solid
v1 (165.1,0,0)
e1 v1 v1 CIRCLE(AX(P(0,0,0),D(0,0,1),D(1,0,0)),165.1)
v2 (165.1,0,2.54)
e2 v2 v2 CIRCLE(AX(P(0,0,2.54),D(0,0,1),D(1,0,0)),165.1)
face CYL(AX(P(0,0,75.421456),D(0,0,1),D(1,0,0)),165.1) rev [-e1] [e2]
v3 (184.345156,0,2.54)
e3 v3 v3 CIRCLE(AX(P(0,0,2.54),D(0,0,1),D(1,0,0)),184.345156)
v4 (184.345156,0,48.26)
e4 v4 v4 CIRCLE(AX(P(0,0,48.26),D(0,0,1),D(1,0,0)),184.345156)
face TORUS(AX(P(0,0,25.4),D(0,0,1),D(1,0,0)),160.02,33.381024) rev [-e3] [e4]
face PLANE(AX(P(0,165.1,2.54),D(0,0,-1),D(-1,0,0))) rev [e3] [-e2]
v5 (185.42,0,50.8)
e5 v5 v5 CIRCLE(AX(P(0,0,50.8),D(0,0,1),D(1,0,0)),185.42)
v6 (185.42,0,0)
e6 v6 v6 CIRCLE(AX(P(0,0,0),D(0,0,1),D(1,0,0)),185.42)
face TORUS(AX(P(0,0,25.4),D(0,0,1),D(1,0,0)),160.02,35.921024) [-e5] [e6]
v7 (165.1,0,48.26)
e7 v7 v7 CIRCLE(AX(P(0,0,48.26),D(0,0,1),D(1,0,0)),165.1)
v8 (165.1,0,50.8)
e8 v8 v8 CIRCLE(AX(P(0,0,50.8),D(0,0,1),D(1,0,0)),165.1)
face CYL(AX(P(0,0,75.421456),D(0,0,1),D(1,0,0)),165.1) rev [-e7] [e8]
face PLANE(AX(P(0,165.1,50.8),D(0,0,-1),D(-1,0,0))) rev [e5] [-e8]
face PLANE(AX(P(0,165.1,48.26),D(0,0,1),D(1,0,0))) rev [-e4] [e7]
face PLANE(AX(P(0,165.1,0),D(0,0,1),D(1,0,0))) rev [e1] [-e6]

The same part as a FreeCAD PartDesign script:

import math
import FreeCAD as App
import Part
import Sketcher
from FreeCAD import Vector
Q = App.Units.Quantity

doc = App.newDocument("Part")
body = doc.addObject("PartDesign::Body", "Body")

# Sketch on YZ plane
sketch1 = body.newObject("Sketcher::SketchObject", "Sketch")
sketch1.AttachmentSupport = (doc.getObject("YZ_Plane"), [""])
sketch1.MapMode = "FlatFace"
sketch1.addGeometry([
    Part.LineSegment(Vector(185.42, 50.8, 0), Vector(165.1, 50.8, 0)),  # 0
    Part.LineSegment(Vector(165.1, 50.8, 0), Vector(165.1, 48.26, 0)),  # 1
    Part.LineSegment(Vector(165.1, 48.26, 0), Vector(184.345156, 48.26, 0)),  # 2
    Part.ArcOfCircle(Part.Circle(Vector(160.02, 25.4, 0), Vector(0, 0, 1), 33.381024), math.radians(-43.221469), math.radians(43.221469)),  # 3
    Part.LineSegment(Vector(184.345156, 2.54, 0), Vector(165.1, 2.54, 0)),  # 4
    Part.LineSegment(Vector(165.1, 2.54, 0), Vector(165.1, 0, 0)),  # 5
    Part.LineSegment(Vector(165.1, 0, 0), Vector(185.42, 0, 0)),  # 6
    Part.ArcOfCircle(Part.Circle(Vector(160.02, 25.4, 0), Vector(0, 0, 1), 35.921024), math.radians(-45), math.radians(45)),  # 7
], False)
sketch1.addConstraint([
    Sketcher.Constraint("Coincident", 0, 2, 1, 1),
    Sketcher.Constraint("Coincident", 1, 2, 2, 1),
    Sketcher.Constraint("Coincident", 2, 2, 3, 2),
    Sketcher.Constraint("Coincident", 3, 1, 4, 1),
    Sketcher.Constraint("Coincident", 4, 2, 5, 1),
    Sketcher.Constraint("Coincident", 5, 2, 6, 1),
    Sketcher.Constraint("Coincident", 6, 2, 7, 1),
    Sketcher.Constraint("Coincident", 7, 2, 0, 1),
    Sketcher.Constraint("Horizontal", 0),
    Sketcher.Constraint("Vertical", 1),
    Sketcher.Constraint("Horizontal", 2),
    Sketcher.Constraint("Horizontal", 4),
    Sketcher.Constraint("Vertical", 5),
    Sketcher.Constraint("Horizontal", 6),
    Sketcher.Constraint("Coincident", 7, 3, 3, 3),
    Sketcher.Constraint("PointOnObject", 5, 2, -1),
    Sketcher.Constraint("Vertical", 2, 2, 3, 1),
    Sketcher.Constraint("Vertical", 1, 2, 4, 2),
    Sketcher.Constraint("Vertical", 6, 2, 7, 2),
    Sketcher.Constraint("DistanceX", 0, 2, 0, 1, Q("0.8 in")),
    Sketcher.Constraint("DistanceY", 1, 2, 1, 1, Q("0.1 in")),
    Sketcher.Constraint("DistanceY", -1, 1, 3, 3, Q("1 in")),
    Sketcher.Constraint("DistanceX", 3, 3, 6, 2, Q("1 in")),
    Sketcher.Constraint("DistanceX", -1, 1, 3, 3, Q("6.3 in")),
    Sketcher.Constraint("Radius", 3, 33.381024),
])
revolution = body.newObject("PartDesign::Revolution", "Revolution")
revolution.Profile = sketch1
revolution.ReferenceAxis = (sketch1, ["V_Axis"])
revolution.Angle = 360

doc.recompute()
